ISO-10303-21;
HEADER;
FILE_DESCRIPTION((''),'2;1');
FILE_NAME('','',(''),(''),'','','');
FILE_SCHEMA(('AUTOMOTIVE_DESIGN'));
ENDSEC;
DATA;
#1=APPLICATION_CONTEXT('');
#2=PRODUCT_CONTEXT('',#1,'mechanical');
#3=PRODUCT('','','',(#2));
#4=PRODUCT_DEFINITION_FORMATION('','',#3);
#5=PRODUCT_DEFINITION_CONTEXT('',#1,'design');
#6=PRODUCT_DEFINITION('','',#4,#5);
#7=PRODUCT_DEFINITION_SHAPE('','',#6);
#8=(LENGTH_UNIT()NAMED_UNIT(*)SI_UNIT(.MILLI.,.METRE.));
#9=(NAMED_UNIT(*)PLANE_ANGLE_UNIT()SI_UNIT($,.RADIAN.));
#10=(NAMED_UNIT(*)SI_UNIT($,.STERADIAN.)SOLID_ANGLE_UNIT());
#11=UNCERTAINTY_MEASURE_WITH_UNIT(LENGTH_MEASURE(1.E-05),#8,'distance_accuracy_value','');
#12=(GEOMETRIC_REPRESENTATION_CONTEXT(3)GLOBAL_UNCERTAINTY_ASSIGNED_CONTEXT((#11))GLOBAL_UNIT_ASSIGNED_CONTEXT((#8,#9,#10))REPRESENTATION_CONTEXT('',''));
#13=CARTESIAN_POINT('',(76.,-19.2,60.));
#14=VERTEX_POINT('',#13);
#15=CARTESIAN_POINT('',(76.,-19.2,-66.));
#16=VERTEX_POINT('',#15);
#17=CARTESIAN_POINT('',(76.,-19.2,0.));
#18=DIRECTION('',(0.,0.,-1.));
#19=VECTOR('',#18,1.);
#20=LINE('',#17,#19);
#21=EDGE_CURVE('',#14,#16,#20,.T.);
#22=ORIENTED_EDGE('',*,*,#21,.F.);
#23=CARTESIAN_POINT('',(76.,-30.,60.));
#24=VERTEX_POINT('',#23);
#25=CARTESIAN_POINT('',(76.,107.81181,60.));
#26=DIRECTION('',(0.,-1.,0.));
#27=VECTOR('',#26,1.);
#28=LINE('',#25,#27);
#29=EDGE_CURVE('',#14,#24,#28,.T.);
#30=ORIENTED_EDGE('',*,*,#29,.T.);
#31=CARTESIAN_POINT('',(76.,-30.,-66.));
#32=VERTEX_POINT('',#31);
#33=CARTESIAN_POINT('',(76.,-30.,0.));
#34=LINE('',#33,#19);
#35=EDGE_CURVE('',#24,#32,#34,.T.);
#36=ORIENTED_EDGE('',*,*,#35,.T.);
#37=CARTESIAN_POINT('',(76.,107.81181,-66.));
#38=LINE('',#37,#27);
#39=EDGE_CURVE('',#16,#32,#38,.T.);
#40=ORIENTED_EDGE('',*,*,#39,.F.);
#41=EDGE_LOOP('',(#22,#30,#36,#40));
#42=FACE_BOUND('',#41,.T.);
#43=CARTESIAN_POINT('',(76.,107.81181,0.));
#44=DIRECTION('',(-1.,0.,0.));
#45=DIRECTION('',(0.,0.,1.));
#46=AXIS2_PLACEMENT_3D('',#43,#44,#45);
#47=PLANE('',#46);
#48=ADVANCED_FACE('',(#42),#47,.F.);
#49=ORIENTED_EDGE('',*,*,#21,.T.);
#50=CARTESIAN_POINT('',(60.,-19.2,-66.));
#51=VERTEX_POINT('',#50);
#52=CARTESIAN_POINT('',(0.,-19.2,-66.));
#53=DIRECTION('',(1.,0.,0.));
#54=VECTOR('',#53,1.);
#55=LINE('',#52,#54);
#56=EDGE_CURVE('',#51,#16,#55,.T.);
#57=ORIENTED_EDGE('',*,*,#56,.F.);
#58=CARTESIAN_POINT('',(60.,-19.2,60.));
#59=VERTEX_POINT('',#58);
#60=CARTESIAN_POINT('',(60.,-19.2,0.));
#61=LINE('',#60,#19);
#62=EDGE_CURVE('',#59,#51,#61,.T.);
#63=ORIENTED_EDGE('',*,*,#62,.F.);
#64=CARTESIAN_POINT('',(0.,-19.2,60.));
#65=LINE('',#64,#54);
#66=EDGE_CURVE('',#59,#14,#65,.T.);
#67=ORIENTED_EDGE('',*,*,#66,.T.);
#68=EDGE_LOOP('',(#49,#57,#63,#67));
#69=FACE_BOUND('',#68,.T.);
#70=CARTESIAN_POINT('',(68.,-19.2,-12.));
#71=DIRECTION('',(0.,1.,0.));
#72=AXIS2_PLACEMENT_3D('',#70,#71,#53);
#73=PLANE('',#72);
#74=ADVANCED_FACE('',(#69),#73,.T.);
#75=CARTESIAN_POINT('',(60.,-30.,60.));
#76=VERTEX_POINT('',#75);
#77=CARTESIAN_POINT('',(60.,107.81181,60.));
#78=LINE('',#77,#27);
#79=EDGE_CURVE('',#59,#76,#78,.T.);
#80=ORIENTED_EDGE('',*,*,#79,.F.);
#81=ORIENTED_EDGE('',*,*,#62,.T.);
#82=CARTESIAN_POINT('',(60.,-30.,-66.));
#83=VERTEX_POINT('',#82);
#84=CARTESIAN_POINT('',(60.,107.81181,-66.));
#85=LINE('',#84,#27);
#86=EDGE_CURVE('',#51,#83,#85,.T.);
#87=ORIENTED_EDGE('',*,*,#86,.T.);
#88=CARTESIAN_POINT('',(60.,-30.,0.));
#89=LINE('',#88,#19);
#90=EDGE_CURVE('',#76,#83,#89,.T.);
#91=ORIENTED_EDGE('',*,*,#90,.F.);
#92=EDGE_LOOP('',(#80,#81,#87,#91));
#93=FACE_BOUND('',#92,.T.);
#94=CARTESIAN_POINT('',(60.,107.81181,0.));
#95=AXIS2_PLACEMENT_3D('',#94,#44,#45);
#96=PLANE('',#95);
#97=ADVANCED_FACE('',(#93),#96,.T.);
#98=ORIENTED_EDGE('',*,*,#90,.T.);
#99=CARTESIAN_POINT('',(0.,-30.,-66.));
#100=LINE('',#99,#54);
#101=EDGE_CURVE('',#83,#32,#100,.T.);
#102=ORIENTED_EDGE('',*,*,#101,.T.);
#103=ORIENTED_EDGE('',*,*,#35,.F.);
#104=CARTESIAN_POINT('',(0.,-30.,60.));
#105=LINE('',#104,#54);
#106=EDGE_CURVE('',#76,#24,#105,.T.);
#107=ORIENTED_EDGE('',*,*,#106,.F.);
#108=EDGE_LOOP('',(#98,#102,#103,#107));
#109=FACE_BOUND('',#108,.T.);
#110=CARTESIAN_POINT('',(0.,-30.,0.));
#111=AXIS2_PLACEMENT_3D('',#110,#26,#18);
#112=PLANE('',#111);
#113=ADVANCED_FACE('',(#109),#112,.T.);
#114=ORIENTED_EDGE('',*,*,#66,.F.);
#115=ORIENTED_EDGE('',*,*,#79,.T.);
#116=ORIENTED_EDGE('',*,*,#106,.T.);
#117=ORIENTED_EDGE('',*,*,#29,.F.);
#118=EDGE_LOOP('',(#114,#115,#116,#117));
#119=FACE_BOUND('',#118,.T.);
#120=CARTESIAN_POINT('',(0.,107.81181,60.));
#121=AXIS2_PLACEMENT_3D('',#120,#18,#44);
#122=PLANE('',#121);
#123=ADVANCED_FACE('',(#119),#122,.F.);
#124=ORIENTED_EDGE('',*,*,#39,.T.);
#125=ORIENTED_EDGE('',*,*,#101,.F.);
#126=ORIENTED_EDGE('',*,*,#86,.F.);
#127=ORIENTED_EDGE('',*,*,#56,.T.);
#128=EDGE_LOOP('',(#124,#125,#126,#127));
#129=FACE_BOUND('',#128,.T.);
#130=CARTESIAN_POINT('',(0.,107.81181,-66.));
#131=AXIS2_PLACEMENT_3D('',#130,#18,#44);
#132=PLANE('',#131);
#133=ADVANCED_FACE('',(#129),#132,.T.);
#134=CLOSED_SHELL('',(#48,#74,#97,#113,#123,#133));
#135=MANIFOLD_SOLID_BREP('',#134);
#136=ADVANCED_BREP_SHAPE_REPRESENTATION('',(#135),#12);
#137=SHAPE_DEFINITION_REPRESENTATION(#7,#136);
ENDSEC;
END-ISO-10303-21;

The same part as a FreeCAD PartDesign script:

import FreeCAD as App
import Part
import Sketcher
from FreeCAD import Vector
Q = App.Units.Quantity


def add_polygon(sketch, points):
    """Adds a closed chain of lines whose ends are joined by coincident constraints."""
    first, n = sketch.GeometryCount, len(points)
    for a, b in zip(points, points[1:] + points[:1]):
        sketch.addGeometry(Part.LineSegment(App.Vector(*a, 0), App.Vector(*b, 0)), False)
    for i in range(n):
        sketch.addConstraint(Sketcher.Constraint("Coincident", first + i, 2, first + (i + 1) % n, 1))

doc = App.newDocument("Part")
body = doc.addObject("PartDesign::Body", "Body")

# Sketch on XZ plane
sketch1 = body.newObject("Sketcher::SketchObject", "Sketch")
sketch1.AttachmentSupport = (doc.getObject("XZ_Plane"), [""])
sketch1.MapMode = "FlatFace"
sketch1.AttachmentOffset = App.Placement(Vector(0, 0, 30), App.Rotation())
add_polygon(sketch1, [(60, 60), (60, -66), (76, -66), (76, 60)])  # lines 0-3
sketch1.addConstraint([
    Sketcher.Constraint("Vertical", 0),
    Sketcher.Constraint("Horizontal", 1),
    Sketcher.Constraint("Vertical", 2),
    Sketcher.Constraint("Horizontal", 3),
    Sketcher.Constraint("DistanceX", 1, 1, 1, 2, Q("16 mm")),
    Sketcher.Constraint("DistanceY", 0, 2, 0, 1, Q("126 mm")),
    Sketcher.Constraint("DistanceX", -1, 1, 0, 2, Q("60 mm")),
    Sketcher.Constraint("DistanceY", 0, 2, -1, 1, Q("66 mm")),
])
pad1 = body.newObject("PartDesign::Pad", "Pad")
pad1.Profile = sketch1
pad1.Length = 10.8
pad1.Reversed = True

doc.recompute()
